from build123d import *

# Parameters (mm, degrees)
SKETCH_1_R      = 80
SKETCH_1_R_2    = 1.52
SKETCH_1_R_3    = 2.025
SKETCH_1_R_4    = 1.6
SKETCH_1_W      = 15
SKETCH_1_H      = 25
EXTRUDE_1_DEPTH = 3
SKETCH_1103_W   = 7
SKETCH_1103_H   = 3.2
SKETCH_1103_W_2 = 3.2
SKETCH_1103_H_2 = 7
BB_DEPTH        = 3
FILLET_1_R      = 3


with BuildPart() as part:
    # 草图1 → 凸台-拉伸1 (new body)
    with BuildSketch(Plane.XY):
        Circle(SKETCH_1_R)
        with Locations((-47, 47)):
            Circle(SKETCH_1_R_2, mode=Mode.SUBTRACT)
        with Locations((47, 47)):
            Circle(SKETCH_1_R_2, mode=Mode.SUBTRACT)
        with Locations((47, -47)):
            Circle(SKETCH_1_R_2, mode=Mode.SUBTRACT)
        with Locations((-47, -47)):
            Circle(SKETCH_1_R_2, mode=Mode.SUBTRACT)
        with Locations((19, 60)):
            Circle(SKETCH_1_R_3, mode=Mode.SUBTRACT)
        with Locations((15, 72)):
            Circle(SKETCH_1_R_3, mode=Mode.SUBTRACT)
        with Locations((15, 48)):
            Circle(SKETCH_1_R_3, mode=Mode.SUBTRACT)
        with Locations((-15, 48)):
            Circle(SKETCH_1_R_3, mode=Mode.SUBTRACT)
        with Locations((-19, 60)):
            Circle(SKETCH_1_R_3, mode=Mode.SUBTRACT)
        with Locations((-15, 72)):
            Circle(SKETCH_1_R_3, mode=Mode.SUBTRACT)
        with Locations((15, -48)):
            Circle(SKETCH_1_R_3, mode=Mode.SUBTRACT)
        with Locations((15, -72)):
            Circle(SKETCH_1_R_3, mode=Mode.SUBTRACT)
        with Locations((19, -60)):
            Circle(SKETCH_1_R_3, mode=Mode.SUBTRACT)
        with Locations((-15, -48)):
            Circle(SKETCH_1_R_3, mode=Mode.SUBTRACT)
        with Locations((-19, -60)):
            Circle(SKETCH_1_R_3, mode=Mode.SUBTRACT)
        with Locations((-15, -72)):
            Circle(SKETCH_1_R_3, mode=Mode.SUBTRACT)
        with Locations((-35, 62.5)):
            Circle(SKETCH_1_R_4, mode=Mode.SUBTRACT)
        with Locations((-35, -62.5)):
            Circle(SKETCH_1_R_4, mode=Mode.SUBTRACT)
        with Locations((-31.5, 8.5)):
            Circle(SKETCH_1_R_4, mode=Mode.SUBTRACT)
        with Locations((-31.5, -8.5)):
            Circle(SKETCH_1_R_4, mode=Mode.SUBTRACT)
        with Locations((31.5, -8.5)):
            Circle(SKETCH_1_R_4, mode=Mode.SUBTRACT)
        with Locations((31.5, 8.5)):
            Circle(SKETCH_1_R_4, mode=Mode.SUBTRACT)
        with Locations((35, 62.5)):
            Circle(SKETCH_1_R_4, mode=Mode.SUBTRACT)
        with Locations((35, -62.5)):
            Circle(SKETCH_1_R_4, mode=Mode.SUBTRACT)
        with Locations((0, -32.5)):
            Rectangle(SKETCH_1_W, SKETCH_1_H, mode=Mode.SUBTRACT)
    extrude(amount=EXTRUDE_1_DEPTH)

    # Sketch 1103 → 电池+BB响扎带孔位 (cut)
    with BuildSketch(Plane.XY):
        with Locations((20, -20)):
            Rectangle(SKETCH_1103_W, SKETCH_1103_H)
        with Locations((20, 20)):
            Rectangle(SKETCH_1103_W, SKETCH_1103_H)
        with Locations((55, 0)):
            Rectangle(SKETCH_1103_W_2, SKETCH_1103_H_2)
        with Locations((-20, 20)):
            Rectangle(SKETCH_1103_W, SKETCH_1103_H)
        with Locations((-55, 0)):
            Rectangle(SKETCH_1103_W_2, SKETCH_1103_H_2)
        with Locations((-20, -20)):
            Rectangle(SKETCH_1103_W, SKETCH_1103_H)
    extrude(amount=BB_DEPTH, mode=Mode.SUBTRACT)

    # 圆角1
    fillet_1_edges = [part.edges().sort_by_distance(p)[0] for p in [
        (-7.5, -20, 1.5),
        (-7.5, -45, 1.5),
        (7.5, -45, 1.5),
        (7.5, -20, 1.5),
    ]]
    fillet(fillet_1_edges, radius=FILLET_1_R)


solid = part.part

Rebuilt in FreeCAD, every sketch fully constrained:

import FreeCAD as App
import Part
import Sketcher
Q = App.Units.Quantity


def edges_at(feature, points):
    """Names of the edges that pass closest to the given points."""
    edges = feature.Shape.Edges
    near = lambda p: min(range(len(edges)), key=lambda i: edges[i].distToShape(Part.Vertex(*p))[0])
    return sorted({f"Edge{near(p) + 1}" for p in points})


def add_polygon(sketch, points):
    """Adds a closed chain of lines whose ends are joined by coincident constraints."""
    first, n = sketch.GeometryCount, len(points)
    for a, b in zip(points, points[1:] + points[:1]):
        sketch.addGeometry(Part.LineSegment(App.Vector(*a, 0), App.Vector(*b, 0)), False)
    for i in range(n):
        sketch.addConstraint(Sketcher.Constraint("Coincident", first + i, 2, first + (i + 1) % n, 1))

doc = App.newDocument("Part")
body = doc.addObject("PartDesign::Body", "Body")

sketch1 = doc.addObject("Sketcher::SketchObject", "Sketch")
body.addObject(sketch1)
sketch1.AttachmentSupport = (doc.XY_Plane, [""])
sketch1.MapMode = "FlatFace"
sketch1.addGeometry(Part.Circle(App.Vector(0, 0, 0), App.Vector(0, 0, 1), 80), False)
sketch1.addGeometry(Part.Circle(App.Vector(-35, -62.5, 0), App.Vector(0, 0, 1), 1.6), False)
sketch1.addGeometry(Part.Circle(App.Vector(-47, -47, 0), App.Vector(0, 0, 1), 1.5), False)
sketch1.addGeometry(Part.Circle(App.Vector(-15, -72, 0), App.Vector(0, 0, 1), 2), False)
sketch1.addGeometry(Part.Circle(App.Vector(-19, -60, 0), App.Vector(0, 0, 1), 2), False)
sketch1.addGeometry(Part.Circle(App.Vector(-15, -48, 0), App.Vector(0, 0, 1), 2), False)
sketch1.addGeometry(Part.Circle(App.Vector(-31.5, -8.5, 0), App.Vector(0, 0, 1), 1.6), False)
sketch1.addGeometry(Part.Circle(App.Vector(15, -72, 0), App.Vector(0, 0, 1), 2), False)
sketch1.addGeometry(Part.Circle(App.Vector(19, -60, 0), App.Vector(0, 0, 1), 2), False)
sketch1.addGeometry(Part.Circle(App.Vector(15, -48, 0), App.Vector(0, 0, 1), 2), False)
sketch1.addGeometry(Part.Circle(App.Vector(35, -62.5, 0), App.Vector(0, 0, 1), 1.6), False)
sketch1.addGeometry(Part.Circle(App.Vector(47, -47, 0), App.Vector(0, 0, 1), 1.5), False)
add_polygon(sketch1, [(7.5, -45), (-7.5, -45), (-7.5, -20), (7.5, -20)])
sketch1.addGeometry(Part.Circle(App.Vector(31.5, -8.5, 0), App.Vector(0, 0, 1), 1.6), False)
sketch1.addGeometry(Part.Circle(App.Vector(-31.5, 8.5, 0), App.Vector(0, 0, 1), 1.6), False)
sketch1.addGeometry(Part.Circle(App.Vector(-47, 47, 0), App.Vector(0, 0, 1), 1.5), False)
sketch1.addGeometry(Part.Circle(App.Vector(-35, 62.5, 0), App.Vector(0, 0, 1), 1.6), False)
sketch1.addGeometry(Part.Circle(App.Vector(-15, 48, 0), App.Vector(0, 0, 1), 2), False)
sketch1.addGeometry(Part.Circle(App.Vector(-19, 60, 0), App.Vector(0, 0, 1), 2), False)
sketch1.addGeometry(Part.Circle(App.Vector(-15, 72, 0), App.Vector(0, 0, 1), 2), False)
sketch1.addGeometry(Part.Circle(App.Vector(31.5, 8.5, 0), App.Vector(0, 0, 1), 1.6), False)
sketch1.addGeometry(Part.Circle(App.Vector(15, 48, 0), App.Vector(0, 0, 1), 2), False)
sketch1.addGeometry(Part.Circle(App.Vector(19, 60, 0), App.Vector(0, 0, 1), 2), False)
sketch1.addGeometry(Part.Circle(App.Vector(15, 72, 0), App.Vector(0, 0, 1), 2), False)
sketch1.addGeometry(Part.Circle(App.Vector(47, 47, 0), App.Vector(0, 0, 1), 1.5), False)
sketch1.addGeometry(Part.Circle(App.Vector(35, 62.5, 0), App.Vector(0, 0, 1), 1.6), False)
sketch1.addConstraint([
    Sketcher.Constraint("Horizontal", 12),
    Sketcher.Constraint("Vertical", 13),
    Sketcher.Constraint("Horizontal", 14),
    Sketcher.Constraint("Vertical", 15),
    Sketcher.Constraint("Coincident", 0, 3, -1, 1),
    Sketcher.Constraint("Equal", 3, 4),
    Sketcher.Constraint("Equal", 4, 5),
    Sketcher.Constraint("Equal", 1, 6),
    Sketcher.Constraint("Equal", 5, 7),
    Sketcher.Constraint("Equal", 7, 8),
    Sketcher.Constraint("Equal", 8, 9),
    Sketcher.Constraint("Equal", 6, 10),
    Sketcher.Constraint("Equal", 2, 11),
    Sketcher.Constraint("Equal", 10, 16),
    Sketcher.Constraint("Equal", 16, 17),
    Sketcher.Constraint("Equal", 11, 18),
    Sketcher.Constraint("Equal", 17, 19),
    Sketcher.Constraint("Equal", 9, 20),
    Sketcher.Constraint("Equal", 20, 21),
    Sketcher.Constraint("Equal", 21, 22),
    Sketcher.Constraint("Equal", 19, 23),
    Sketcher.Constraint("Equal", 22, 24),
    Sketcher.Constraint("Equal", 24, 25),
    Sketcher.Constraint("Equal", 25, 26),
    Sketcher.Constraint("Equal", 18, 27),
    Sketcher.Constraint("Equal", 23, 28),
    Sketcher.Constraint("Symmetric", 16, 3, 17, 3, -1, 1),
    Sketcher.Constraint("Symmetric", 11, 3, 18, 3, -1, 1),
    Sketcher.Constraint("Symmetric", 10, 3, 19, 3, -1, 1),
    Sketcher.Constraint("Symmetric", 9, 3, 20, 3, -1, 1),
    Sketcher.Constraint("Symmetric", 8, 3, 21, 3, -1, 1),
    Sketcher.Constraint("Symmetric", 7, 3, 22, 3, -1, 1),
    Sketcher.Constraint("Symmetric", 6, 3, 23, 3, -1, 1),
    Sketcher.Constraint("Symmetric", 5, 3, 24, 3, -1, 1),
    Sketcher.Constraint("Symmetric", 4, 3, 25, 3, -1, 1),
    Sketcher.Constraint("Symmetric", 3, 3, 26, 3, -1, 1),
    Sketcher.Constraint("Symmetric", 2, 3, 27, 3, -1, 1),
    Sketcher.Constraint("Symmetric", 1, 3, 28, 3, -1, 1),
    Sketcher.Constraint("Symmetric", 3, 3, 7, 3, -2),
    Sketcher.Constraint("Symmetric", 4, 3, 8, 3, -2),
    Sketcher.Constraint("Symmetric", 5, 3, 9, 3, -2),
    Sketcher.Constraint("Symmetric", 1, 3, 10, 3, -2),
    Sketcher.Constraint("Symmetric", 2, 3, 11, 3, -2),
    Sketcher.Constraint("Symmetric", 6, 3, 16, 3, -2),
    Sketcher.Constraint("Vertical", 3, 3, 5, 3),
    Sketcher.Constraint("Diameter", 0, Q("160 mm")),
    Sketcher.Constraint("Diameter", 1, Q("3.2 mm")),
    Sketcher.Constraint("Diameter", 2, Q("3.04 mm")),
    Sketcher.Constraint("Diameter", 3, Q("4.05 mm")),
    Sketcher.Constraint("DistanceX", 12, 2, 12, 1, Q("15 mm")),
    Sketcher.Constraint("DistanceY", 13, 1, 13, 2, Q("25 mm")),
    Sketcher.Constraint("DistanceX", 1, 3, -1, 1, Q("35 mm")),
    Sketcher.Constraint("DistanceX", 2, 3, -1, 1, Q("47 mm")),
    Sketcher.Constraint("DistanceY", 2, 3, -1, 1, Q("47 mm")),
    Sketcher.Constraint("DistanceX", 3, 3, -1, 1, Q("15 mm")),
    Sketcher.Constraint("DistanceY", 3, 3, -1, 1, Q("72 mm")),
    Sketcher.Constraint("DistanceX", 4, 3, -1, 1, Q("19 mm")),
    Sketcher.Constraint("DistanceY", 4, 3, -1, 1, Q("60 mm")),
    Sketcher.Constraint("DistanceY", 5, 3, -1, 1, Q("48 mm")),
    Sketcher.Constraint("DistanceY", 12, 2, -1, 1, Q("45 mm")),
    Sketcher.Constraint("DistanceY", 1, 3, 6, 3, Q("54 mm")),
    Sketcher.Constraint("DistanceY", 6, 3, 17, 3, Q("17 mm")),
    Sketcher.Constraint("DistanceX", 17, 3, 16, 3, Q("63 mm")),
    Sketcher.Constraint("DistanceX", 6, 3, 13, 2, Q("24 mm")),
])
pad1 = doc.addObject("PartDesign::Pad", "Pad")
body.addObject(pad1)
pad1.Profile = sketch1
pad1.Length = 3

sketch2 = doc.addObject("Sketcher::SketchObject", "Sketch001")
body.addObject(sketch2)
sketch2.AttachmentSupport = (doc.XY_Plane, [""])
sketch2.MapMode = "FlatFace"
add_polygon(sketch2, [(16.5, -18.4), (16.5, -21.6), (23.5, -21.6), (23.5, -18.4)])
add_polygon(sketch2, [(16.5, 21.6), (16.5, 18.4), (23.5, 18.4), (23.5, 21.6)])
add_polygon(sketch2, [(53.4, 3.5), (53.4, -3.5), (56.6, -3.5), (56.6, 3.5)])
add_polygon(sketch2, [(-23.5, 21.6), (-23.5, 18.4), (-16.5, 18.4), (-16.5, 21.6)])
add_polygon(sketch2, [(-56.6, 3.5), (-56.6, -3.5), (-53.4, -3.5), (-53.4, 3.5)])
add_polygon(sketch2, [(-23.5, -18.4), (-23.5, -21.6), (-16.5, -21.6), (-16.5, -18.4)])
sketch2.addConstraint([
    Sketcher.Constraint("Vertical", 0),
    Sketcher.Constraint("Horizontal", 1),
    Sketcher.Constraint("Vertical", 2),
    Sketcher.Constraint("Horizontal", 3),
    Sketcher.Constraint("Vertical", 4),
    Sketcher.Constraint("Horizontal", 5),
    Sketcher.Constraint("Vertical", 6),
    Sketcher.Constraint("Horizontal", 7),
    Sketcher.Constraint("Vertical", 8),
    Sketcher.Constraint("Horizontal", 9),
    Sketcher.Constraint("Vertical", 10),
    Sketcher.Constraint("Horizontal", 11),
    Sketcher.Constraint("Vertical", 12),
    Sketcher.Constraint("Horizontal", 13),
    Sketcher.Constraint("Vertical", 14),
    Sketcher.Constraint("Horizontal", 15),
    Sketcher.Constraint("Vertical", 16),
    Sketcher.Constraint("Horizontal", 17),
    Sketcher.Constraint("Vertical", 18),
    Sketcher.Constraint("Horizontal", 19),
    Sketcher.Constraint("Vertical", 20),
    Sketcher.Constraint("Horizontal", 21),
    Sketcher.Constraint("Vertical", 22),
    Sketcher.Constraint("Horizontal", 23),
    Sketcher.Constraint("Symmetric", 2, 2, 12, 2, -1, 1),
    Sketcher.Constraint("Symmetric", 0, 2, 14, 2, -1, 1),
    Sketcher.Constraint("Symmetric", 10, 2, 16, 2, -1, 1),
    Sketcher.Constraint("Symmetric", 8, 2, 18, 2, -1, 1),
    Sketcher.Constraint("Symmetric", 6, 2, 20, 2, -1, 1),
    Sketcher.Constraint("Symmetric", 4, 2, 22, 2, -1, 1),
    Sketcher.Constraint("Symmetric", 5, 2, 12, 2, -2),
    Sketcher.Constraint("Symmetric", 7, 2, 14, 2, -2),
    Sketcher.Constraint("Horizontal", 9, 2, 16, 2),
    Sketcher.Constraint("Equal", 19, 0),
    Sketcher.Constraint("Equal", 23, 8),
    Sketcher.Constraint("DistanceX", 1, 1, 1, 2, Q("7 mm")),
    Sketcher.Constraint("DistanceX", 9, 1, 9, 2, Q("3.2 mm")),
    Sketcher.Constraint("DistanceY", 0, 2, 4, 2, Q("40 mm")),
    Sketcher.Constraint("DistanceX", 12, 2, 4, 2, Q("40 mm")),
    Sketcher.Constraint("DistanceX", -1, 1, 8, 2, Q("53.4 mm")),
])
pocket1 = doc.addObject("PartDesign::Pocket", "Pocket")
body.addObject(pocket1)
pocket1.Profile = sketch2
pocket1.Length = 3
pocket1.Reversed = True
doc.recompute()

fillet = doc.addObject("PartDesign::Fillet", "Fillet")
body.addObject(fillet)
fillet.Base = (pocket1, edges_at(pocket1, [
    (-7.5, -20, 1.5),
    (-7.5, -45, 1.5),
    (7.5, -45, 1.5),
    (7.5, -20, 1.5),
]))
fillet.Radius = 3

doc.recompute()
